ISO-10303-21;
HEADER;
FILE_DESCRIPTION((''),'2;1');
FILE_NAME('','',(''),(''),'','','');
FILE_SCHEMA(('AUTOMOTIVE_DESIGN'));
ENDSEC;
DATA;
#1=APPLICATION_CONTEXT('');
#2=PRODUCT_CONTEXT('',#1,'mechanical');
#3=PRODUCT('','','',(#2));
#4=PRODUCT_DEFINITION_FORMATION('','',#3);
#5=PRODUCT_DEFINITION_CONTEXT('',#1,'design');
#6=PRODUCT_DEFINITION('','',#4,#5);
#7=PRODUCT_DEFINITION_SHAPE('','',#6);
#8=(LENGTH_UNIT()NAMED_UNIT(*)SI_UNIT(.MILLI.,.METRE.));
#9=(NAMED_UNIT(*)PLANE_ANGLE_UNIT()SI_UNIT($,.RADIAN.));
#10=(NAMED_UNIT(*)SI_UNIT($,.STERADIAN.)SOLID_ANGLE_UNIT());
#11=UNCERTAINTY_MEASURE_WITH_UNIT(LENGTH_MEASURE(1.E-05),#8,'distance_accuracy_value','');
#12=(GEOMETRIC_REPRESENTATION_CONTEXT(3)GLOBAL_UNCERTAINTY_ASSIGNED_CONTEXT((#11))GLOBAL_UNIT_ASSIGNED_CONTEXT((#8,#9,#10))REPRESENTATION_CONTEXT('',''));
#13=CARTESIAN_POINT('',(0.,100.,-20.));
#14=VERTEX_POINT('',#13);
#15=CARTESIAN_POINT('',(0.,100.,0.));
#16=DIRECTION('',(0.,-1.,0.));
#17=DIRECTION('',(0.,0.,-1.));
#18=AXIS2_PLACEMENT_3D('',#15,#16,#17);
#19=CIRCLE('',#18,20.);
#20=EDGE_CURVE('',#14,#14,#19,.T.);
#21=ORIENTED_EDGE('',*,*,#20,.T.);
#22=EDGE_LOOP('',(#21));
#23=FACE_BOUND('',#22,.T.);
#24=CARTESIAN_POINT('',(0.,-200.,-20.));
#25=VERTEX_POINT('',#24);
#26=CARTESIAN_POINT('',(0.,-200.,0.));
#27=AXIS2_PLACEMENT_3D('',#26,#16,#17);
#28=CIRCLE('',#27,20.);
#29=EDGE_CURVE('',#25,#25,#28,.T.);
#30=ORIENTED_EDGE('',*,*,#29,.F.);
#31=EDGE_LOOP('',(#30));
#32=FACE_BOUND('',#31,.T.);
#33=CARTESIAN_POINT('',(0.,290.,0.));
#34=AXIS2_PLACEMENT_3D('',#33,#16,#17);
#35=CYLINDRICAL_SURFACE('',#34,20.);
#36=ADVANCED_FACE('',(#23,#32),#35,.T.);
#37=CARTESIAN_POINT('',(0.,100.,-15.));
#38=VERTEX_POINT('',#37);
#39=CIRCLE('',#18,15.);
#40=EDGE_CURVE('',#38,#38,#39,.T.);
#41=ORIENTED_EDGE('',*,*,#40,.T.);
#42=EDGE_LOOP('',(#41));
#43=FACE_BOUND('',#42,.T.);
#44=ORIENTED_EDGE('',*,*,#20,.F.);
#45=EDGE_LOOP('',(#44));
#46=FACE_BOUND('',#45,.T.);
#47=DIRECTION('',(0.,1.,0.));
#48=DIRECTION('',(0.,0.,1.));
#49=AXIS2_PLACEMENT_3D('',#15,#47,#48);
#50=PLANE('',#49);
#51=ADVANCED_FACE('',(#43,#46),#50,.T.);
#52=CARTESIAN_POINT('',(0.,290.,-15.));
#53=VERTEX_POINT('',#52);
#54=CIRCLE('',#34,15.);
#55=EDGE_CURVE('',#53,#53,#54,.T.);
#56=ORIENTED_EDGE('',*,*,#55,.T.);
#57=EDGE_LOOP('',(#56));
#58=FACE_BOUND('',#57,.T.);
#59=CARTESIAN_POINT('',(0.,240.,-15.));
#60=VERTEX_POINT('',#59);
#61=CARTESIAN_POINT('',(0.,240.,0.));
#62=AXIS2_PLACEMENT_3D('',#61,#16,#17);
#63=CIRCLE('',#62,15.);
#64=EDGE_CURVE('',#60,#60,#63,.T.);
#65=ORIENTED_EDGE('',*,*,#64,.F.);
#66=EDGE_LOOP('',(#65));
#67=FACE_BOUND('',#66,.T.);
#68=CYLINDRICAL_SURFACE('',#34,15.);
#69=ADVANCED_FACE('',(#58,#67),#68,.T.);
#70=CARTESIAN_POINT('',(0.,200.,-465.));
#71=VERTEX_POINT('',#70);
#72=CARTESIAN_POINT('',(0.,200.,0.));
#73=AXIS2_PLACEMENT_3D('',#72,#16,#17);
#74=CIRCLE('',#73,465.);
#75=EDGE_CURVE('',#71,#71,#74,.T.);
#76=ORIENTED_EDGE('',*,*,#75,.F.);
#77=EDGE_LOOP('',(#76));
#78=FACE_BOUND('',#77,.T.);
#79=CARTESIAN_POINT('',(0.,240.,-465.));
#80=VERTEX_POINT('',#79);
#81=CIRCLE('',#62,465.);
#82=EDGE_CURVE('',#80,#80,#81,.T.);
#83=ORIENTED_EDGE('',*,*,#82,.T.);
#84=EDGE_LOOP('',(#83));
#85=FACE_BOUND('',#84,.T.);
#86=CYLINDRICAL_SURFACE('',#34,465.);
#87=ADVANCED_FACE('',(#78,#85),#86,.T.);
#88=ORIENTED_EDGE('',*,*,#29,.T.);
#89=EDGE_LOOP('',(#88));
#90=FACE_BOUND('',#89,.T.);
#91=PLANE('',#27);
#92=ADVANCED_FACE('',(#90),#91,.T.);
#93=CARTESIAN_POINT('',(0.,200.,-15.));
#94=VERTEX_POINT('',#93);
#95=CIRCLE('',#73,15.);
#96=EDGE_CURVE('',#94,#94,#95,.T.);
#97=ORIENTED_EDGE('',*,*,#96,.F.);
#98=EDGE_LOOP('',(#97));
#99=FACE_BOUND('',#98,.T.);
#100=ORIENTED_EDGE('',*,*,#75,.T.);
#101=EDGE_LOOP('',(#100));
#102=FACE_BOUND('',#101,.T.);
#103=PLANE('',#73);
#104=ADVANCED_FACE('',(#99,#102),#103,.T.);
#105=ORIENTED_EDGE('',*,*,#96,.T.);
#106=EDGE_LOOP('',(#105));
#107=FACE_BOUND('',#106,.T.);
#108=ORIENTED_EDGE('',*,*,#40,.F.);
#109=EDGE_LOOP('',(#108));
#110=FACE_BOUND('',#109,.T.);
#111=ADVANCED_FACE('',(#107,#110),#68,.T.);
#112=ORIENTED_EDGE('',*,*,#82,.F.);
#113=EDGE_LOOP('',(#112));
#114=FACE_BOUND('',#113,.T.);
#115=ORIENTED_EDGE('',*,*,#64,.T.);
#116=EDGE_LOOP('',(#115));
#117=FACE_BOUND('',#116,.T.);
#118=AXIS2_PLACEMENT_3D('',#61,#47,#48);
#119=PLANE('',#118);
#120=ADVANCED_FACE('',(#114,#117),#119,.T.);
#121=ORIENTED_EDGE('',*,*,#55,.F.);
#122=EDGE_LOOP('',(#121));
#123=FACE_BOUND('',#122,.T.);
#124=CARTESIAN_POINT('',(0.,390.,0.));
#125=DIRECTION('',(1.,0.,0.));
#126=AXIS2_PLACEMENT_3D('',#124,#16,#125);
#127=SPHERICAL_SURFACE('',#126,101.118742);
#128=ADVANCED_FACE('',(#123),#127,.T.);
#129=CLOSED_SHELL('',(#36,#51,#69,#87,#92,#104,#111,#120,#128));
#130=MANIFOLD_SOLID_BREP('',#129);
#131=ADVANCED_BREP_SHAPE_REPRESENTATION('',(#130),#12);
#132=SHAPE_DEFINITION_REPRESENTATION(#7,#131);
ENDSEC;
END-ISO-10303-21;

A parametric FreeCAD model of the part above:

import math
import FreeCAD as App
import Part
import Sketcher

doc = App.newDocument("Part")
body = doc.addObject("PartDesign::Body", "Body")

sketch1 = body.newObject("Sketcher::SketchObject", "Sketch")
sketch1.AttachmentSupport = (doc.getObject("XY_Plane"), [""])
sketch1.MapMode = "FlatFace"
sketch1.addGeometry([
    Part.LineSegment(App.Vector(0, 0, 0), App.Vector(20, 0, 0)),
    Part.LineSegment(App.Vector(20, 0, 0), App.Vector(20, 100, 0)),
    Part.LineSegment(App.Vector(20, 100, 0), App.Vector(15, 100, 0)),
    Part.LineSegment(App.Vector(15, 100, 0), App.Vector(15, 200, 0)),
    Part.LineSegment(App.Vector(15, 200, 0), App.Vector(465, 200, 0)),
    Part.LineSegment(App.Vector(465, 200, 0), App.Vector(465, 240, 0)),
    Part.LineSegment(App.Vector(465, 240, 0), App.Vector(15, 240, 0)),
    Part.LineSegment(App.Vector(15, 240, 0), App.Vector(15, 290, 0)),
    Part.ArcOfCircle(Part.Circle(App.Vector(0, 390, 0), App.Vector(0, 0, 1), 101), math.radians(-81), math.radians(0)),
    Part.ArcOfCircle(Part.Circle(App.Vector(0, 390, 0), App.Vector(0, 0, 1), 101), math.radians(0), math.radians(90)),
    Part.LineSegment(App.Vector(0, 491, 0), App.Vector(0, 0, 0)),
], False)
sketch1.addConstraint([
    Sketcher.Constraint("Coincident", 0, 2, 1, 1),
    Sketcher.Constraint("Coincident", 1, 2, 2, 1),
    Sketcher.Constraint("Coincident", 2, 2, 3, 1),
    Sketcher.Constraint("Coincident", 3, 2, 4, 1),
    Sketcher.Constraint("Coincident", 4, 2, 5, 1),
    Sketcher.Constraint("Coincident", 5, 2, 6, 1),
    Sketcher.Constraint("Coincident", 6, 2, 7, 1),
    Sketcher.Constraint("Coincident", 7, 2, 8, 1),
    Sketcher.Constraint("Tangent", 8, 2, 9, 1),
    Sketcher.Constraint("Coincident", 9, 2, 10, 1),
    Sketcher.Constraint("Coincident", 10, 2, 0, 1),
    Sketcher.Constraint("Horizontal", 0),
    Sketcher.Constraint("Vertical", 1),
    Sketcher.Constraint("Horizontal", 2),
    Sketcher.Constraint("Vertical", 3),
    Sketcher.Constraint("Horizontal", 4),
    Sketcher.Constraint("Vertical", 5),
    Sketcher.Constraint("Horizontal", 6),
    Sketcher.Constraint("Vertical", 7),
    Sketcher.Constraint("Vertical", 10),
    Sketcher.Constraint("Coincident", 10, 2, -1, 1),
    Sketcher.Constraint("Equal", 8, 9),
    Sketcher.Constraint("PointOnObject", 8, 3, -2),
    Sketcher.Constraint("Horizontal", 9, 3, 8, 2),
    Sketcher.Constraint("Vertical", 3, 2, 6, 2),
    Sketcher.Constraint("Equal", 1, 3),
    Sketcher.Constraint("DistanceX", 0, 1, 0, 2, 20.0),
    Sketcher.Constraint("DistanceX", 2, 2, 2, 1, 5.0),
    Sketcher.Constraint("DistanceX", 4, 1, 4, 2, 450.0),
    Sketcher.Constraint("DistanceY", 1, 1, 1, 2, 100.0),
    Sketcher.Constraint("DistanceY", 5, 1, 5, 2, 40.0),
    Sketcher.Constraint("DistanceY", 7, 1, 7, 2, 50.0),
    Sketcher.Constraint("DistanceY", -1, 1, 8, 3, 390.0),
])
revolution = body.newObject("PartDesign::Revolution", "Revolution")
revolution.Profile = sketch1
revolution.ReferenceAxis = (sketch1, ["V_Axis"])
revolution.Angle = 360

sketch2 = body.newObject("Sketcher::SketchObject", "Sketch001")
sketch2.AttachmentSupport = (doc.getObject("XZ_Plane"), [""])
sketch2.MapMode = "FlatFace"
sketch2.addGeometry(Part.Circle(App.Vector(0, 0, 0), App.Vector(0, 0, 1), 20), False)
sketch2.addConstraint([
    Sketcher.Constraint("Coincident", 0, 3, -1, 1),
    Sketcher.Constraint("Diameter", 0, 40.0),
])
pad1 = body.newObject("PartDesign::Pad", "Pad")
pad1.Profile = sketch2
pad1.Length = 200

doc.recompute()
